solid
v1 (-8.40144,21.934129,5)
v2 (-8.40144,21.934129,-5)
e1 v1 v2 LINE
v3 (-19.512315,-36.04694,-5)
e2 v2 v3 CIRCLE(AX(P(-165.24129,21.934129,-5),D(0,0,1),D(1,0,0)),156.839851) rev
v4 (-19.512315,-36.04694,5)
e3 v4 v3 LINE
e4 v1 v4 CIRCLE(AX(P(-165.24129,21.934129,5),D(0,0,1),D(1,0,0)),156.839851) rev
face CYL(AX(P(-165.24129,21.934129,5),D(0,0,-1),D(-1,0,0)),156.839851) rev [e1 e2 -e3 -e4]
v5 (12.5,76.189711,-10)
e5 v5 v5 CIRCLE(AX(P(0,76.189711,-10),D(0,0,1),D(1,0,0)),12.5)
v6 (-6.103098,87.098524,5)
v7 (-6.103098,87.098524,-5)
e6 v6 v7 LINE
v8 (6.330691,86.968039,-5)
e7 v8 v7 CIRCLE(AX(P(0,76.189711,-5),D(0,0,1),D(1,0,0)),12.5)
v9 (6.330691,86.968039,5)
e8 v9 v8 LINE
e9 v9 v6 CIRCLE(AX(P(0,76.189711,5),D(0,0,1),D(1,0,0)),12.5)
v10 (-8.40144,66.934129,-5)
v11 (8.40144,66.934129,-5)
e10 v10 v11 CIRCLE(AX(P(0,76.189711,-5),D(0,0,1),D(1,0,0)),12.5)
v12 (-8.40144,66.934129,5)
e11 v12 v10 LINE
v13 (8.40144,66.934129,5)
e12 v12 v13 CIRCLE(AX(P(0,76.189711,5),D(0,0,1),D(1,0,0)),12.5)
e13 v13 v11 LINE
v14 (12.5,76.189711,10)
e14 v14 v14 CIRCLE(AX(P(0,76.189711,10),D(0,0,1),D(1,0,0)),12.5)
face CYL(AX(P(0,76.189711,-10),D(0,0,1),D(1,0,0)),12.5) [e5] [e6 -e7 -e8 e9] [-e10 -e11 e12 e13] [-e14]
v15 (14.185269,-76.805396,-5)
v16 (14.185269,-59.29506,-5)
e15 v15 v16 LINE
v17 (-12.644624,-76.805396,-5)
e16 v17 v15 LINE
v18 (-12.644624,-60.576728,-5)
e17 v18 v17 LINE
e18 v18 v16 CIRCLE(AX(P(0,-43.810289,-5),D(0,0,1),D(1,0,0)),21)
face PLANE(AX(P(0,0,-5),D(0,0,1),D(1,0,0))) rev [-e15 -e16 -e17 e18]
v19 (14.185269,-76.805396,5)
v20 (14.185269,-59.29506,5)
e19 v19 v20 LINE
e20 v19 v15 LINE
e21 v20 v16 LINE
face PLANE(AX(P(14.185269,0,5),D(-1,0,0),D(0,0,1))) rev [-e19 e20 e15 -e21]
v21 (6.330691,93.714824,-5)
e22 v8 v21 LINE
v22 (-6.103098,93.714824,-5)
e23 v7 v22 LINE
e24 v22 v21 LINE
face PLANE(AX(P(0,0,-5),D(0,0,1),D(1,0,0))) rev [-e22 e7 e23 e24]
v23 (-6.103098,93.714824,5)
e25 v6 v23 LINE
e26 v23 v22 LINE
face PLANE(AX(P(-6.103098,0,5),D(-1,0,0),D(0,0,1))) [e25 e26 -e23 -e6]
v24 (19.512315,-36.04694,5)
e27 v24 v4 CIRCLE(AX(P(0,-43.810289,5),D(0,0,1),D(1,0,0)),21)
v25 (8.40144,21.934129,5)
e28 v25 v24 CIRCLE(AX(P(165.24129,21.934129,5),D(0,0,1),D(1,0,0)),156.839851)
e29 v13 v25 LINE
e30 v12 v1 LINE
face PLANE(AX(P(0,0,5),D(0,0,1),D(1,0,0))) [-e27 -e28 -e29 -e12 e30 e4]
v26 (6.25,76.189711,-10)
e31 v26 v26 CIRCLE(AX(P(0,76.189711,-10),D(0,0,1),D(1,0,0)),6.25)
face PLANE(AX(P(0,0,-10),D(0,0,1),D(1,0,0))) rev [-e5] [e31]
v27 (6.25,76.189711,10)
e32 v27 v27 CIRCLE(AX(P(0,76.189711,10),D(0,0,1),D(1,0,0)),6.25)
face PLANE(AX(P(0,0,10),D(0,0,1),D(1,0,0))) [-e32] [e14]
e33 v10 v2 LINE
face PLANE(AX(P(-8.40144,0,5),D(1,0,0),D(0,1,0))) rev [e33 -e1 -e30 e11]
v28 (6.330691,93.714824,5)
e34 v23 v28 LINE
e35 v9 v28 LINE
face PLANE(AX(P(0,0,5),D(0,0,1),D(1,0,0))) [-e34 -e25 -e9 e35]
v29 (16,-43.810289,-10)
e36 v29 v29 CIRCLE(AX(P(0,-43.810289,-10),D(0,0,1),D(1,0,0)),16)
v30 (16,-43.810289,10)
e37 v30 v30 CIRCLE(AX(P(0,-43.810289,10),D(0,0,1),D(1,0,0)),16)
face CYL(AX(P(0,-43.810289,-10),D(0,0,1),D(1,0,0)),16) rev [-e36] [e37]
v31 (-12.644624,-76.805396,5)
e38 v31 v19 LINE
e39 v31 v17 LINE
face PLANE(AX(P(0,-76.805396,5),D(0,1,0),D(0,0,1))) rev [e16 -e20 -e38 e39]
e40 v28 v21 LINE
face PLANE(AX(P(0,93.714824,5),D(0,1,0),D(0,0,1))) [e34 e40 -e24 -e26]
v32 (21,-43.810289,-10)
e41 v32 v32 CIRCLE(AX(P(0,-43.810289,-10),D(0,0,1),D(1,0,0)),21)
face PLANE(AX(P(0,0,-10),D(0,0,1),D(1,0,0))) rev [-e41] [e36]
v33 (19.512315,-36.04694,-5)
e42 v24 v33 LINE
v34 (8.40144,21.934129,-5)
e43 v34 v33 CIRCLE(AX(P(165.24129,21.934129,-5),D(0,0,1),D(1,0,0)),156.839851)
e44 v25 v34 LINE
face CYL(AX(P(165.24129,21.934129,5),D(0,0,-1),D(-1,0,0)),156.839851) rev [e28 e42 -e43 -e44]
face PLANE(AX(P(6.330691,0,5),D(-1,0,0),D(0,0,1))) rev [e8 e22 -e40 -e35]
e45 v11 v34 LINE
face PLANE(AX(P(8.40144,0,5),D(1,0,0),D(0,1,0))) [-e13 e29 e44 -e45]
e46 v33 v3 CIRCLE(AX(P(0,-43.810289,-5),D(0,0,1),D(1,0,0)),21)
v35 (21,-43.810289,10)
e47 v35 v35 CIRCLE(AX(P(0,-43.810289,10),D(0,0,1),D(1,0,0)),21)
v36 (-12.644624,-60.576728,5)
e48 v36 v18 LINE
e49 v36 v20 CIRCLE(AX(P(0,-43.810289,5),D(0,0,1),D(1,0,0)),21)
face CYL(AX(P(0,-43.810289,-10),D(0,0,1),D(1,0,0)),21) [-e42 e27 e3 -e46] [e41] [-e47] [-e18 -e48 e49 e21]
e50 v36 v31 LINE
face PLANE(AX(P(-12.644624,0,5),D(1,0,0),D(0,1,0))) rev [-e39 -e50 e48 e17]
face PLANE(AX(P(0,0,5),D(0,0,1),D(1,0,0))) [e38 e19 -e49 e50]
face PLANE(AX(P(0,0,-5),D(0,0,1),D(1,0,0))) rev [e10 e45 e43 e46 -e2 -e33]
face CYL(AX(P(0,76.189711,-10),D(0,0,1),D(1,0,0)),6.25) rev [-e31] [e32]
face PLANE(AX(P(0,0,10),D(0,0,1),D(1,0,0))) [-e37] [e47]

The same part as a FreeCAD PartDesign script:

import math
import FreeCAD as App
import Part
import Sketcher
from FreeCAD import Vector
Q = App.Units.Quantity

doc = App.newDocument("Part")
params = doc.addObject("Spreadsheet::Sheet", "Params")
for row, (alias, value) in enumerate([
    ("sketch1_diameter", "42 mm"),
    ("sketch1_diameter2", "32 mm"),
    ("pad1_length", "20 mm"),
    ("sketch2_diameter", "25 mm"),
    ("sketch2_diameter2", "12.5 mm"),
    ("pad2_length", "20 mm"),
    ("sketch3_radius", "21 mm"),
    ("sketch3_radius2", "12.5 mm"),
    ("sketch3_height", "45 mm"),
    ("pad3_length", "10 mm"),
], start=1):
    params.set(f"A{row}", alias)
    params.set(f"B{row}", "=" + value)
    params.setAlias(f"B{row}", alias)

body = doc.addObject("PartDesign::Body", "Body")

# Sketch on XY plane
sketch1 = body.newObject("Sketcher::SketchObject", "Sketch")
sketch1.AttachmentSupport = (doc.getObject("XY_Plane"), [""])
sketch1.MapMode = "FlatFace"
sketch1.addGeometry([
    Part.Circle(Vector(0, -43.810289, 0), Vector(0, 0, 1), 21),
    Part.Circle(Vector(0, -43.810289, 0), Vector(0, 0, 1), 16),
], False)
sketch1.addConstraint([
    Sketcher.Constraint("Coincident", 1, 3, 0, 3),
    Sketcher.Constraint("PointOnObject", 0, 3, -2),
    Sketcher.Constraint("Diameter", 0, Q("42 mm")),
    Sketcher.Constraint("Diameter", 1, Q("32 mm")),
    Sketcher.Constraint("DistanceY", 0, 3, -1, 1, Q("43.810289 mm")),
])
sketch1.setExpression("Constraints[2]", "Params.sketch1_diameter")
sketch1.setExpression("Constraints[3]", "Params.sketch1_diameter2")
pad1 = body.newObject("PartDesign::Pad", "Pad")
pad1.Profile = sketch1
pad1.setExpression("Length", "Params.pad1_length")
pad1.Midplane = True
body2 = doc.addObject("PartDesign::Body", "Body001")

# Sketch on XY plane
sketch2 = body2.newObject("Sketcher::SketchObject", "Sketch001")
sketch2.AttachmentSupport = (doc.getObject("XY_Plane001"), [""])
sketch2.MapMode = "FlatFace"
sketch2.addGeometry([
    Part.Circle(Vector(0, 76.189711, 0), Vector(0, 0, 1), 12.5),
    Part.Circle(Vector(0, 76.189711, 0), Vector(0, 0, 1), 6.25),
], False)
sketch2.addConstraint([
    Sketcher.Constraint("Coincident", 1, 3, 0, 3),
    Sketcher.Constraint("PointOnObject", 0, 3, -2),
    Sketcher.Constraint("Diameter", 0, Q("25 mm")),
    Sketcher.Constraint("Diameter", 1, Q("12.5 mm")),
    Sketcher.Constraint("DistanceY", -1, 1, 0, 3, Q("76.189711 mm")),
])
sketch2.setExpression("Constraints[2]", "Params.sketch2_diameter")
sketch2.setExpression("Constraints[3]", "Params.sketch2_diameter2")
pad2 = body2.newObject("PartDesign::Pad", "Pad001")
pad2.Profile = sketch2
pad2.setExpression("Length", "Params.pad2_length")
pad2.Midplane = True
body.AllowCompound = True
doc.recompute()

boolean = body.newObject("PartDesign::Boolean", "Boolean")
boolean.Type = "Fuse"
boolean.addObjects([body2])

# Sketch on XY plane
sketch3 = body.newObject("Sketcher::SketchObject", "Sketch002")
sketch3.AttachmentSupport = (doc.getObject("XY_Plane"), [""])
sketch3.MapMode = "FlatFace"
sketch3.addGeometry([
    Part.ArcOfCircle(Part.Circle(Vector(-165.24129, 21.934129, 0), Vector(0, 0, 1), 156.839851), math.radians(-21.696085), math.radians(0)),  # 0
    Part.ArcOfCircle(Part.Circle(Vector(0, -43.810289, 0), Vector(0, 0, 1), 21), math.radians(21.696085), math.radians(158.303915)),  # 1
    Part.ArcOfCircle(Part.Circle(Vector(165.24129, 21.934129, 0), Vector(0, 0, 1), 156.839851), math.radians(-180), math.radians(-158.303915)),  # 2
    Part.LineSegment(Vector(8.40144, 21.934129, 0), Vector(8.40144, 66.934129, 0)),  # 3
    Part.ArcOfCircle(Part.Circle(Vector(0, 76.189711, 0), Vector(0, 0, 1), 12.5), math.radians(-132.230526), math.radians(-47.769474)),  # 4
    Part.LineSegment(Vector(-8.40144, 66.934129, 0), Vector(-8.40144, 21.934129, 0)),  # 5
    Part.LineSegment(Vector(-6.103098, 93.714824, 0), Vector(-6.103098, 87.098524, 0)),  # 6
    Part.ArcOfCircle(Part.Circle(Vector(0, 76.189711, 0), Vector(0, 0, 1), 12.5), math.radians(59.571994), math.radians(119.225484)),  # 7
    Part.LineSegment(Vector(6.330691, 86.968039, 0), Vector(6.330691, 93.714824, 0)),  # 8
    Part.LineSegment(Vector(6.330691, 93.714824, 0), Vector(-6.103098, 93.714824, 0)),  # 9
    Part.ArcOfCircle(Part.Circle(Vector(0, -43.810289, 0), Vector(0, 0, 1), 21), math.radians(-127.022237), math.radians(-47.507866)),  # 10
    Part.LineSegment(Vector(-12.644624, -60.576728, 0), Vector(-12.644624, -76.805396, 0)),  # 11
    Part.LineSegment(Vector(-12.644624, -76.805396, 0), Vector(14.185269, -76.805396, 0)),  # 12
    Part.LineSegment(Vector(14.185269, -76.805396, 0), Vector(14.185269, -59.29506, 0)),  # 13
], False)
sketch3.addConstraint([
    Sketcher.Constraint("Tangent", 0, 1, 1, 2),
    Sketcher.Constraint("Tangent", 1, 1, 2, 2),
    Sketcher.Constraint("Tangent", 2, 1, 3, 1),
    Sketcher.Constraint("Coincident", 3, 2, 4, 2),
    Sketcher.Constraint("Coincident", 4, 1, 5, 1),
    Sketcher.Constraint("Tangent", 5, 2, 0, 2),
    Sketcher.Constraint("Coincident", 6, 2, 7, 2),
    Sketcher.Constraint("Coincident", 7, 1, 8, 1),
    Sketcher.Constraint("Coincident", 8, 2, 9, 1),
    Sketcher.Constraint("Coincident", 9, 2, 6, 1),
    Sketcher.Constraint("Coincident", 10, 1, 11, 1),
    Sketcher.Constraint("Coincident", 11, 2, 12, 1),
    Sketcher.Constraint("Coincident", 12, 2, 13, 1),
    Sketcher.Constraint("Coincident", 13, 2, 10, 2),
    Sketcher.Constraint("Vertical", 3),
    Sketcher.Constraint("Vertical", 5),
    Sketcher.Constraint("Vertical", 6),
    Sketcher.Constraint("Vertical", 8),
    Sketcher.Constraint("Horizontal", 9),
    Sketcher.Constraint("Vertical", 11),
    Sketcher.Constraint("Horizontal", 12),
    Sketcher.Constraint("Vertical", 13),
    Sketcher.Constraint("Coincident", 7, 3, 4, 3),
    Sketcher.Constraint("Coincident", 10, 3, 1, 3),
    Sketcher.Constraint("Equal", 0, 2),
    Sketcher.Constraint("Equal", 4, 7),
    Sketcher.Constraint("Equal", 1, 10),
    Sketcher.Constraint("Symmetric", 0, 3, 2, 3, -2),
    Sketcher.Constraint("PointOnObject", 4, 3, -2),
    Sketcher.Constraint("Radius", 1, Q("21 mm")),
    Sketcher.Constraint("Radius", 4, Q("12.5 mm")),
    Sketcher.Constraint("DistanceY", 3, 1, 3, 2, Q("45 mm")),
    Sketcher.Constraint("DistanceY", 1, 3, 4, 3, Q("120 mm")),
    Sketcher.Constraint("Radius", 0, Q("156.839851 mm")),
    Sketcher.Constraint("DistanceY", 6, 2, 6, 1, Q("6.6163 mm")),
    Sketcher.Constraint("DistanceX", 9, 2, 9, 1, Q("12.43379 mm")),
    Sketcher.Constraint("DistanceX", 6, 2, -1, 1, Q("6.103098 mm")),
    Sketcher.Constraint("DistanceX", 12, 1, 12, 2, Q("26.829892 mm")),
    Sketcher.Constraint("DistanceY", 11, 2, 11, 1, Q("16.228668 mm")),
    Sketcher.Constraint("DistanceY", 13, 1, 13, 2, Q("17.510335 mm")),
    Sketcher.Constraint("DistanceY", -1, 1, 0, 3, Q("21.934129 mm")),
])
sketch3.setExpression("Constraints[29]", "Params.sketch3_radius")
sketch3.setExpression("Constraints[30]", "Params.sketch3_radius2")
sketch3.setExpression("Constraints[31]", "Params.sketch3_height")
pad3 = body.newObject("PartDesign::Pad", "Pad002")
pad3.Profile = sketch3
pad3.setExpression("Length", "Params.pad3_length")
pad3.Midplane = True

doc.recompute()
